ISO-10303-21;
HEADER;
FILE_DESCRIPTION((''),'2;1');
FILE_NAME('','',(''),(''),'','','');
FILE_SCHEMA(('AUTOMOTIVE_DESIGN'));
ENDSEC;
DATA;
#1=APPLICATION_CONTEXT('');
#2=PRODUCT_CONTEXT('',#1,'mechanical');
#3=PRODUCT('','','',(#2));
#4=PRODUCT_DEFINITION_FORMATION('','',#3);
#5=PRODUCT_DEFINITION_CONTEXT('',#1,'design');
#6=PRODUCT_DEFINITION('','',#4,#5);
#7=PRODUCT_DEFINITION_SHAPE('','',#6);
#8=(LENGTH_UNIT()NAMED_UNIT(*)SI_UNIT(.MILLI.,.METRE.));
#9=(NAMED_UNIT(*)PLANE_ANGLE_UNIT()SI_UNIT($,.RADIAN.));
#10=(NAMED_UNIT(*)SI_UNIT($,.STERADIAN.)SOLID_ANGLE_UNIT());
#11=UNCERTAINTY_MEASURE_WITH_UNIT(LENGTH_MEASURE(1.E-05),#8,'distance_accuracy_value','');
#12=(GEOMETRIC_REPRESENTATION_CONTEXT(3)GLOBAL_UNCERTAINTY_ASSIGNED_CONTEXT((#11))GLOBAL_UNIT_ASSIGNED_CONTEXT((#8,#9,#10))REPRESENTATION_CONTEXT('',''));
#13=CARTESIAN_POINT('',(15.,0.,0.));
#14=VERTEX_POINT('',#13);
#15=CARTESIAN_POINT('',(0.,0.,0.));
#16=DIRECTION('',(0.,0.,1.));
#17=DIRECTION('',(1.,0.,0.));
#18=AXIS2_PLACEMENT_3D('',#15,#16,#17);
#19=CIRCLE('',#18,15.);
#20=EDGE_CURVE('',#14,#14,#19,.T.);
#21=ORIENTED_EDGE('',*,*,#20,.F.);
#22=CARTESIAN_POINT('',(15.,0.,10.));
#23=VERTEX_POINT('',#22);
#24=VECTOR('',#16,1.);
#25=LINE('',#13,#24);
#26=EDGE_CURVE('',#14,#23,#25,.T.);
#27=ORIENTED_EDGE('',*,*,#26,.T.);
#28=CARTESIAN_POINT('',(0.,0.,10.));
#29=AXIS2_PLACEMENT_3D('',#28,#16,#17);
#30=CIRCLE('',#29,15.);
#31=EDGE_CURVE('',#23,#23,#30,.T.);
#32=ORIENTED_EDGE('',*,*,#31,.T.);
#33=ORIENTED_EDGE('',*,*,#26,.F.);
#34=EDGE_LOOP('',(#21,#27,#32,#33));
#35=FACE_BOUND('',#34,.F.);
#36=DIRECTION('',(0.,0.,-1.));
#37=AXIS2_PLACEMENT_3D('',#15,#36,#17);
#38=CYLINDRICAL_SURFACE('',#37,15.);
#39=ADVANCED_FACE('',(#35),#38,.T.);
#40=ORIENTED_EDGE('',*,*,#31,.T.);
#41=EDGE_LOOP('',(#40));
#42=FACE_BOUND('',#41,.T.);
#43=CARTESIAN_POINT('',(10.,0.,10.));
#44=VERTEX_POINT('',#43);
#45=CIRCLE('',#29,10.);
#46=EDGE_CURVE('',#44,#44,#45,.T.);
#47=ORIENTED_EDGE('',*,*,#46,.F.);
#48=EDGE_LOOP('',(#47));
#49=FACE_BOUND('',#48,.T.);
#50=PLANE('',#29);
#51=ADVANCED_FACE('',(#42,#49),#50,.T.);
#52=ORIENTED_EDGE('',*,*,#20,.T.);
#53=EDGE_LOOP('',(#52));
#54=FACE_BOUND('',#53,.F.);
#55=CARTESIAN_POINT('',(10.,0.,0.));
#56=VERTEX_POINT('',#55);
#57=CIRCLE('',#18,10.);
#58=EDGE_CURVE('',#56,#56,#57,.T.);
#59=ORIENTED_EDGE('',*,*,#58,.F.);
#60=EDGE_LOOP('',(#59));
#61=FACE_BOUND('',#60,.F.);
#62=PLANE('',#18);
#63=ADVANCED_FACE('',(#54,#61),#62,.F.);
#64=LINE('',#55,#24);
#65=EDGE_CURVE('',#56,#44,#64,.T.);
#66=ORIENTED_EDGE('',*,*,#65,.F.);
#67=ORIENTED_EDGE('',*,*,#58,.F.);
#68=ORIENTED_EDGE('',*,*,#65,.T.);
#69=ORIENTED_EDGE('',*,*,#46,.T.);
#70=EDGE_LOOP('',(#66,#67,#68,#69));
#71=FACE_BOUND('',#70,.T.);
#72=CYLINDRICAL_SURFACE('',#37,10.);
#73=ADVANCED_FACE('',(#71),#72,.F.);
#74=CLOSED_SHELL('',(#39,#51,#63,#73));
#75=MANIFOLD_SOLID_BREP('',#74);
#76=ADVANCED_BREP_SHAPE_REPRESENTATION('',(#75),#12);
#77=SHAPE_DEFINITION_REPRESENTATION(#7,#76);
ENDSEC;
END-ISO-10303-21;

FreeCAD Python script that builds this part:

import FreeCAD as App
import Part
import Sketcher

V = App.Vector

doc = App.newDocument("Part")
params = doc.addObject("Spreadsheet::Sheet", "Params")
for row, (alias, value) in enumerate([
    ("sketch1_diameter", "30 mm"),
    ("sketch1_diameter2", "20 mm"),
    ("pad1_length", "10 mm"),
], start=1):
    params.set(f"A{row}", alias)
    params.set(f"B{row}", "=" + value)
    params.setAlias(f"B{row}", alias)

body = doc.addObject("PartDesign::Body", "Body")

sketch1 = body.newObject("Sketcher::SketchObject", "Sketch")
sketch1.AttachmentSupport = (doc.getObject("XY_Plane"), [""])
sketch1.MapMode = "FlatFace"
sketch1.addGeometry([
    Part.Circle(V(0, 0, 0), V(0, 0, 1), 15),
    Part.Circle(V(0, 0, 0), V(0, 0, 1), 10),
], False)
sketch1.addConstraint([
    Sketcher.Constraint("Coincident", 0, 3, -1, 1),
    Sketcher.Constraint("Coincident", 1, 3, -1, 1),
    Sketcher.Constraint("Diameter", 0, 30.0),
    Sketcher.Constraint("Diameter", 1, 20.0),
])
sketch1.setExpression("Constraints[2]", "Params.sketch1_diameter")
sketch1.setExpression("Constraints[3]", "Params.sketch1_diameter2")
pad1 = body.newObject("PartDesign::Pad", "Pad")
pad1.Profile = sketch1
pad1.setExpression("Length", "Params.pad1_length")

doc.recompute()
